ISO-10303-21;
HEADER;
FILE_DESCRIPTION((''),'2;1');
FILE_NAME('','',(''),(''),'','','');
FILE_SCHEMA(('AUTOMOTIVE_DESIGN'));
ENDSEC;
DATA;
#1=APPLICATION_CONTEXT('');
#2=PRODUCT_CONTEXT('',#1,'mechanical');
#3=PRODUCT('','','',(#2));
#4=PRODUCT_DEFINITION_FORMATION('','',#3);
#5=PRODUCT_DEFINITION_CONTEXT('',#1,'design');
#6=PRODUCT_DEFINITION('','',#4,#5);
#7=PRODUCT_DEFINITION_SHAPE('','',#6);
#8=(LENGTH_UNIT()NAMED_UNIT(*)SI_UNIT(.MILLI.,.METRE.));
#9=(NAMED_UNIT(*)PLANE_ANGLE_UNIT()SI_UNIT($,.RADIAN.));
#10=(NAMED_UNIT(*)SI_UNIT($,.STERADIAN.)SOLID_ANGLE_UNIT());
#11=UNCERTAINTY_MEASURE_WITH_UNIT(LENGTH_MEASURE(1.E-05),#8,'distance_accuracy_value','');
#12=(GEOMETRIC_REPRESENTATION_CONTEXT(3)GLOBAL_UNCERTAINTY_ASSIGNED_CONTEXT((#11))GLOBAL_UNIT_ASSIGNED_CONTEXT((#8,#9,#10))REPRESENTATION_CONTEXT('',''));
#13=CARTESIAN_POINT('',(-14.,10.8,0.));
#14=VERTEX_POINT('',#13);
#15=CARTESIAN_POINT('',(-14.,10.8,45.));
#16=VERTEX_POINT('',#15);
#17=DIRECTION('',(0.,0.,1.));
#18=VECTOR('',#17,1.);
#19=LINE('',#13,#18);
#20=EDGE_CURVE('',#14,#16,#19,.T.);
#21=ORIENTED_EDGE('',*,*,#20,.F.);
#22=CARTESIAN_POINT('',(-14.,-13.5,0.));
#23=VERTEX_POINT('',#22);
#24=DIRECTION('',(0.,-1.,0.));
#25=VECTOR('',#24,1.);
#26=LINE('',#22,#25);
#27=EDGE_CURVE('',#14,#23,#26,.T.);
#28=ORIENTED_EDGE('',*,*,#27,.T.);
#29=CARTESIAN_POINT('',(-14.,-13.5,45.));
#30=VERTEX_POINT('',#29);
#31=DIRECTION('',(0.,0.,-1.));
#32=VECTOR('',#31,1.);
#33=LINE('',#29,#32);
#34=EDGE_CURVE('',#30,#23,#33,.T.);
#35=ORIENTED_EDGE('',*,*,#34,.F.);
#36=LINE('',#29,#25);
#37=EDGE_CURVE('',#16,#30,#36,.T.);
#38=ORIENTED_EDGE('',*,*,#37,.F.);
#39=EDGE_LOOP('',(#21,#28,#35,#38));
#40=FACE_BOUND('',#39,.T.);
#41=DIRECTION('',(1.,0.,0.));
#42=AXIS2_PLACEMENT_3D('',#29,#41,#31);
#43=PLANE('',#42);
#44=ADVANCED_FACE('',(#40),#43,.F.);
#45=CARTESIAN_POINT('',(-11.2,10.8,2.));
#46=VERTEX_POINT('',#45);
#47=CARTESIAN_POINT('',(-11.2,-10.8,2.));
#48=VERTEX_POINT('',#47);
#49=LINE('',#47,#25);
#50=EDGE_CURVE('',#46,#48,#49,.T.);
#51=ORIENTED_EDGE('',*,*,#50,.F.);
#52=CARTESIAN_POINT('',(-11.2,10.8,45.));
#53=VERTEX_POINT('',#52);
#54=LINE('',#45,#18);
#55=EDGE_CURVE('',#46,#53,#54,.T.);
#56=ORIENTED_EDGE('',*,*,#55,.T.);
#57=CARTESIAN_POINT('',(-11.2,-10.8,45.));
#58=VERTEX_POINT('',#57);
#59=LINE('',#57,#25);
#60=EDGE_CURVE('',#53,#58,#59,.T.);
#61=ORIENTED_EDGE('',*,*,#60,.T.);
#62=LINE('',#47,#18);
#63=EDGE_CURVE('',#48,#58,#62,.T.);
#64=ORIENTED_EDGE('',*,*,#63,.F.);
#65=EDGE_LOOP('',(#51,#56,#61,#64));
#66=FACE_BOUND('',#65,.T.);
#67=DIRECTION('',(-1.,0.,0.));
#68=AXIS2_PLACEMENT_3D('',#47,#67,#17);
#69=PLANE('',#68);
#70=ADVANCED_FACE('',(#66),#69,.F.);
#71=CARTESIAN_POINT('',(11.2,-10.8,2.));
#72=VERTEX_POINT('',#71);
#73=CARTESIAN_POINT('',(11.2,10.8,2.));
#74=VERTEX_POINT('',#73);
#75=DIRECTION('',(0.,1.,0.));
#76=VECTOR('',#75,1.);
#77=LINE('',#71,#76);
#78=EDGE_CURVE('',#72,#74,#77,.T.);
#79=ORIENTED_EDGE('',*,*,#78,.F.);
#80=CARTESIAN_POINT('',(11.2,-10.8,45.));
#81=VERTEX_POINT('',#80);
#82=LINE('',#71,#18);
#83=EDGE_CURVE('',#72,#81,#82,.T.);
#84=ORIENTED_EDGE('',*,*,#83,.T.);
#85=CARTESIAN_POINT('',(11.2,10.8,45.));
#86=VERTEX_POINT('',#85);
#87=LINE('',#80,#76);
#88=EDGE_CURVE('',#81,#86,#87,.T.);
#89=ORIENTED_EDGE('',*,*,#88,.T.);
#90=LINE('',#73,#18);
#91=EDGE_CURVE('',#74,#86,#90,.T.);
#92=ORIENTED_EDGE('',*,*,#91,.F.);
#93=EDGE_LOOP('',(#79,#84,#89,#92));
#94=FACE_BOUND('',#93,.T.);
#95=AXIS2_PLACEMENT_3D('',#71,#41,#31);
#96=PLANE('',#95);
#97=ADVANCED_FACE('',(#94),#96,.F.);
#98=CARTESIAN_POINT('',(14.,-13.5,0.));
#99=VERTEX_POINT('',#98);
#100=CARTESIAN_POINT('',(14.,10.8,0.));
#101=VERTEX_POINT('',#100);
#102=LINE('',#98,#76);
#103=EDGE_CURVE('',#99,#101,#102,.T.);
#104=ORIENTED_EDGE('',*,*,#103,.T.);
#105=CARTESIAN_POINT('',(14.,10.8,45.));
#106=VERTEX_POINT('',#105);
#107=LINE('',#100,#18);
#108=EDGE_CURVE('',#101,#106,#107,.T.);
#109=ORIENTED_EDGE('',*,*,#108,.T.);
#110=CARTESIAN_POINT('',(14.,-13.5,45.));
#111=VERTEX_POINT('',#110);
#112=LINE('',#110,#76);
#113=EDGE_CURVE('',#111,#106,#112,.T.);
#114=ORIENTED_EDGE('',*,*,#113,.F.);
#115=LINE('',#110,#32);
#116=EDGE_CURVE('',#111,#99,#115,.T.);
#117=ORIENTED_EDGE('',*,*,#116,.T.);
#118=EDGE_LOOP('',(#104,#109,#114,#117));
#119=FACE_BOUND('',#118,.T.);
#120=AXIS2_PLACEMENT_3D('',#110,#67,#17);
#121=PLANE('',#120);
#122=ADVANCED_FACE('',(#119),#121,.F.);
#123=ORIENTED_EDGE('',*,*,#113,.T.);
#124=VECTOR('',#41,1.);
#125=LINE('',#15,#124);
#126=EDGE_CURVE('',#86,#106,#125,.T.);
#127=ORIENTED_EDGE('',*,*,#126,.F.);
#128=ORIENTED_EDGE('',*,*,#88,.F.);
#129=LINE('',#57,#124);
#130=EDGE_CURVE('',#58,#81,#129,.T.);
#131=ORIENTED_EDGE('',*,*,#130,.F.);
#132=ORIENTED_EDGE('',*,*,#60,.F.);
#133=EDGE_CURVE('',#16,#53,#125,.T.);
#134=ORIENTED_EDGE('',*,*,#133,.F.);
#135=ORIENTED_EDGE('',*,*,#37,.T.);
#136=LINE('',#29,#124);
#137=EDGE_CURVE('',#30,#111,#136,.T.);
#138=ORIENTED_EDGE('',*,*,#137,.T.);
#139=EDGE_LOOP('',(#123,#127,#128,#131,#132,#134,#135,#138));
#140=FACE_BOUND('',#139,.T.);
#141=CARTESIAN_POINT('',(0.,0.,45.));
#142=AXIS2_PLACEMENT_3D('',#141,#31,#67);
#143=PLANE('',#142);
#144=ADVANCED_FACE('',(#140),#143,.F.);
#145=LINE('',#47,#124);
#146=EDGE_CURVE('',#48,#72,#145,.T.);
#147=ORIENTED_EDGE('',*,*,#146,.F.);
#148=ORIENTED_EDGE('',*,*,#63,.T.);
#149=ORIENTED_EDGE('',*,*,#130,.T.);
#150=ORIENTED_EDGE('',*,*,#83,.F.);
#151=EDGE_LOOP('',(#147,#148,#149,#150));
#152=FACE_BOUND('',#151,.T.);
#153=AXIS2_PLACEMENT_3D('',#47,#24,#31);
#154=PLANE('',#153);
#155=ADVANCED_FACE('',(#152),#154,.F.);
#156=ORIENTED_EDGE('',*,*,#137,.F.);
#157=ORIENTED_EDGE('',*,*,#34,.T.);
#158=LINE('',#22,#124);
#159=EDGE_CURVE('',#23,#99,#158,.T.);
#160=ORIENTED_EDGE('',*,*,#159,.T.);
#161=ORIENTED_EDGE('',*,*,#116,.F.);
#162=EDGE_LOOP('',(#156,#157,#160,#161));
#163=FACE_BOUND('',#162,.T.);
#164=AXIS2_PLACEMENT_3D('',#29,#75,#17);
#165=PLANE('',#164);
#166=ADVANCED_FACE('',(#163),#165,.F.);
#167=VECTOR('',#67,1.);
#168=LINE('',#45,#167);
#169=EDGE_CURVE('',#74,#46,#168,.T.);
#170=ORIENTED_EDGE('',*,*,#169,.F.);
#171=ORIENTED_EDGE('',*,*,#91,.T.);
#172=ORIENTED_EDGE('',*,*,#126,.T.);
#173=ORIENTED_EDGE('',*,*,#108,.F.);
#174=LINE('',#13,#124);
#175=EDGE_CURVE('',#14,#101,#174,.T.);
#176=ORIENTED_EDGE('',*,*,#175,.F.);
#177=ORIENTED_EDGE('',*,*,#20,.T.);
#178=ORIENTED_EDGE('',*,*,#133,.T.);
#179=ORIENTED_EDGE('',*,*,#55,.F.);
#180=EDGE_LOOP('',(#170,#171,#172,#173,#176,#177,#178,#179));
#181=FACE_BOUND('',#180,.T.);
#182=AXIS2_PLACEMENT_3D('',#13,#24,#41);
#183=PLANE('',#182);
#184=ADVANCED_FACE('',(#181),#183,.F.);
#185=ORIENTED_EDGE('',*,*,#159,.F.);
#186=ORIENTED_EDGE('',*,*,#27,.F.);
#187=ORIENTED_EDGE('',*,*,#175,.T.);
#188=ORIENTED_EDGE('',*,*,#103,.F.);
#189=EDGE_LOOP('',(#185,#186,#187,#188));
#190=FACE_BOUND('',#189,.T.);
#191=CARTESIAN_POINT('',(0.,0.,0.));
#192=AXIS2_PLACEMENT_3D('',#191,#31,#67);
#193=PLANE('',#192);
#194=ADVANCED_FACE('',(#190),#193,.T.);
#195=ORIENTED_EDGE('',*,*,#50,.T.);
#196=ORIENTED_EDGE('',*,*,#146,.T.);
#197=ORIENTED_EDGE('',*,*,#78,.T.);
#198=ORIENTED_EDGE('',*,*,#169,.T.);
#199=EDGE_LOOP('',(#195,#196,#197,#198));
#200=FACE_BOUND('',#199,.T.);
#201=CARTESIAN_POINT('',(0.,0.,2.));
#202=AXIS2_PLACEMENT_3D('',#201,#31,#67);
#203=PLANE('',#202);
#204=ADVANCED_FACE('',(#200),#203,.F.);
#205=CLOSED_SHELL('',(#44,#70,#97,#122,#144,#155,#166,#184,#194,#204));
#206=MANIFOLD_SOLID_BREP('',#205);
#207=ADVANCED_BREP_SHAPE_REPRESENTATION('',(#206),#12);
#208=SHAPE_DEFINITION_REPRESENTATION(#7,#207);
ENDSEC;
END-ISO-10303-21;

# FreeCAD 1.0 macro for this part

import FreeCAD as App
import Part
import Sketcher

V = App.Vector
Q = App.Units.Quantity


def edges_at(feature, points):
    """Names of the edges that pass closest to the given points."""
    edges = feature.Shape.Edges
    near = lambda p: min(range(len(edges)), key=lambda i: edges[i].distToShape(Part.Vertex(*p))[0])
    return sorted({f"Edge{near(p) + 1}" for p in points})

doc = App.newDocument("Part")
body = doc.addObject("PartDesign::Body", "Body")

# Sketch on XY plane
sketch1 = body.newObject("Sketcher::SketchObject", "Sketch")
sketch1.AttachmentSupport = (doc.getObject("XY_Plane"), [""])
sketch1.MapMode = "FlatFace"
sketch1.addGeometry(Part.LineSegment(V(-14, 13.5, 0), V(-14, -13.5, 0)), False)
sketch1.addGeometry(Part.LineSegment(V(-14, -13.5, 0), V(14, -13.5, 0)), False)
sketch1.addGeometry(Part.LineSegment(V(14, -13.5, 0), V(14, 13.5, 0)), False)
sketch1.addGeometry(Part.LineSegment(V(14, 13.5, 0), V(-14, 13.5, 0)), False)
sketch1.addConstraint(Sketcher.Constraint("Coincident", 0, 2, 1, 1))
sketch1.addConstraint(Sketcher.Constraint("Coincident", 1, 2, 2, 1))
sketch1.addConstraint(Sketcher.Constraint("Coincident", 2, 2, 3, 1))
sketch1.addConstraint(Sketcher.Constraint("Coincident", 3, 2, 0, 1))
sketch1.addConstraint(Sketcher.Constraint("Vertical", 0))
sketch1.addConstraint(Sketcher.Constraint("Horizontal", 1))
sketch1.addConstraint(Sketcher.Constraint("Vertical", 2))
sketch1.addConstraint(Sketcher.Constraint("Horizontal", 3))
sketch1.addConstraint(Sketcher.Constraint("Symmetric", 0, 2, 2, 2, -1, 1))
sketch1.addConstraint(Sketcher.Constraint("DistanceX", 1, 1, 1, 2, Q("28 mm")))
sketch1.addConstraint(Sketcher.Constraint("DistanceY", 0, 2, 0, 1, Q("27 mm")))
pad1 = body.newObject("PartDesign::Pad", "Pad")
pad1.Profile = sketch1
pad1.Length = 45

# Sketch on XY plane
sketch2 = body.newObject("Sketcher::SketchObject", "Sketch001")
sketch2.AttachmentSupport = (doc.getObject("XY_Plane"), [""])
sketch2.MapMode = "FlatFace"
sketch2.AttachmentOffset = App.Placement(V(0, 0, 45), App.Rotation())
sketch2.addGeometry(Part.LineSegment(V(-11.2, 10.8, 0), V(-11.2, -10.8, 0)), False)
sketch2.addGeometry(Part.LineSegment(V(-11.2, -10.8, 0), V(11.2, -10.8, 0)), False)
sketch2.addGeometry(Part.LineSegment(V(11.2, -10.8, 0), V(11.2, 10.8, 0)), False)
sketch2.addGeometry(Part.LineSegment(V(11.2, 10.8, 0), V(-11.2, 10.8, 0)), False)
sketch2.addConstraint(Sketcher.Constraint("Coincident", 0, 2, 1, 1))
sketch2.addConstraint(Sketcher.Constraint("Coincident", 1, 2, 2, 1))
sketch2.addConstraint(Sketcher.Constraint("Coincident", 2, 2, 3, 1))
sketch2.addConstraint(Sketcher.Constraint("Coincident", 3, 2, 0, 1))
sketch2.addConstraint(Sketcher.Constraint("Vertical", 0))
sketch2.addConstraint(Sketcher.Constraint("Horizontal", 1))
sketch2.addConstraint(Sketcher.Constraint("Vertical", 2))
sketch2.addConstraint(Sketcher.Constraint("Horizontal", 3))
sketch2.addConstraint(Sketcher.Constraint("Symmetric", 0, 2, 2, 2, -1, 1))
sketch2.addConstraint(Sketcher.Constraint("DistanceX", 1, 1, 1, 2, Q("22.4 mm")))
sketch2.addConstraint(Sketcher.Constraint("DistanceY", 0, 2, 0, 1, Q("21.6 mm")))
pocket1 = body.newObject("PartDesign::Pocket", "Pocket")
pocket1.Profile = sketch2
pocket1.Length = 43
doc.recompute()

fillet = body.newObject("PartDesign::Fillet", "Fillet")
fillet.Base = (pocket1, edges_at(pocket1, [(-14, 13.5, 22.5), (14, 13.5, 22.5)]))
fillet.Radius = 2

# Sketch on XY plane
sketch3 = body.newObject("Sketcher::SketchObject", "Sketch002")
sketch3.AttachmentSupport = (doc.getObject("XY_Plane"), [""])
sketch3.MapMode = "FlatFace"
sketch3.AttachmentOffset = App.Placement(V(0, 0, 45), App.Rotation())
sketch3.addGeometry(Part.LineSegment(V(-14, 14.038808, 0), V(-14, 10.8, 0)), False)
sketch3.addGeometry(Part.LineSegment(V(-14, 10.8, 0), V(14, 10.8, 0)), False)
sketch3.addGeometry(Part.LineSegment(V(14, 10.8, 0), V(14, 14.038808, 0)), False)
sketch3.addGeometry(Part.LineSegment(V(14, 14.038808, 0), V(-14, 14.038808, 0)), False)
sketch3.addConstraint(Sketcher.Constraint("Coincident", 0, 2, 1, 1))
sketch3.addConstraint(Sketcher.Constraint("Coincident", 1, 2, 2, 1))
sketch3.addConstraint(Sketcher.Constraint("Coincident", 2, 2, 3, 1))
sketch3.addConstraint(Sketcher.Constraint("Coincident", 3, 2, 0, 1))
sketch3.addConstraint(Sketcher.Constraint("Vertical", 0))
sketch3.addConstraint(Sketcher.Constraint("Horizontal", 1))
sketch3.addConstraint(Sketcher.Constraint("Vertical", 2))
sketch3.addConstraint(Sketcher.Constraint("Horizontal", 3))
sketch3.addConstraint(Sketcher.Constraint("DistanceX", 1, 1, 1, 2, Q("28 mm")))
sketch3.addConstraint(Sketcher.Constraint("DistanceX", 0, 2, -1, 1, Q("14 mm")))
sketch3.addConstraint(Sketcher.Constraint("DistanceY", -1, 1, 0, 2, Q("10.8 mm")))
sketch3.addConstraint(Sketcher.Constraint("DistanceY", 0, 2, 0, 1, Q("3.238808 mm")))
pocket2 = body.newObject("PartDesign::Pocket", "Pocket001")
pocket2.Profile = sketch3
pocket2.Type = "ThroughAll"

doc.recompute()
